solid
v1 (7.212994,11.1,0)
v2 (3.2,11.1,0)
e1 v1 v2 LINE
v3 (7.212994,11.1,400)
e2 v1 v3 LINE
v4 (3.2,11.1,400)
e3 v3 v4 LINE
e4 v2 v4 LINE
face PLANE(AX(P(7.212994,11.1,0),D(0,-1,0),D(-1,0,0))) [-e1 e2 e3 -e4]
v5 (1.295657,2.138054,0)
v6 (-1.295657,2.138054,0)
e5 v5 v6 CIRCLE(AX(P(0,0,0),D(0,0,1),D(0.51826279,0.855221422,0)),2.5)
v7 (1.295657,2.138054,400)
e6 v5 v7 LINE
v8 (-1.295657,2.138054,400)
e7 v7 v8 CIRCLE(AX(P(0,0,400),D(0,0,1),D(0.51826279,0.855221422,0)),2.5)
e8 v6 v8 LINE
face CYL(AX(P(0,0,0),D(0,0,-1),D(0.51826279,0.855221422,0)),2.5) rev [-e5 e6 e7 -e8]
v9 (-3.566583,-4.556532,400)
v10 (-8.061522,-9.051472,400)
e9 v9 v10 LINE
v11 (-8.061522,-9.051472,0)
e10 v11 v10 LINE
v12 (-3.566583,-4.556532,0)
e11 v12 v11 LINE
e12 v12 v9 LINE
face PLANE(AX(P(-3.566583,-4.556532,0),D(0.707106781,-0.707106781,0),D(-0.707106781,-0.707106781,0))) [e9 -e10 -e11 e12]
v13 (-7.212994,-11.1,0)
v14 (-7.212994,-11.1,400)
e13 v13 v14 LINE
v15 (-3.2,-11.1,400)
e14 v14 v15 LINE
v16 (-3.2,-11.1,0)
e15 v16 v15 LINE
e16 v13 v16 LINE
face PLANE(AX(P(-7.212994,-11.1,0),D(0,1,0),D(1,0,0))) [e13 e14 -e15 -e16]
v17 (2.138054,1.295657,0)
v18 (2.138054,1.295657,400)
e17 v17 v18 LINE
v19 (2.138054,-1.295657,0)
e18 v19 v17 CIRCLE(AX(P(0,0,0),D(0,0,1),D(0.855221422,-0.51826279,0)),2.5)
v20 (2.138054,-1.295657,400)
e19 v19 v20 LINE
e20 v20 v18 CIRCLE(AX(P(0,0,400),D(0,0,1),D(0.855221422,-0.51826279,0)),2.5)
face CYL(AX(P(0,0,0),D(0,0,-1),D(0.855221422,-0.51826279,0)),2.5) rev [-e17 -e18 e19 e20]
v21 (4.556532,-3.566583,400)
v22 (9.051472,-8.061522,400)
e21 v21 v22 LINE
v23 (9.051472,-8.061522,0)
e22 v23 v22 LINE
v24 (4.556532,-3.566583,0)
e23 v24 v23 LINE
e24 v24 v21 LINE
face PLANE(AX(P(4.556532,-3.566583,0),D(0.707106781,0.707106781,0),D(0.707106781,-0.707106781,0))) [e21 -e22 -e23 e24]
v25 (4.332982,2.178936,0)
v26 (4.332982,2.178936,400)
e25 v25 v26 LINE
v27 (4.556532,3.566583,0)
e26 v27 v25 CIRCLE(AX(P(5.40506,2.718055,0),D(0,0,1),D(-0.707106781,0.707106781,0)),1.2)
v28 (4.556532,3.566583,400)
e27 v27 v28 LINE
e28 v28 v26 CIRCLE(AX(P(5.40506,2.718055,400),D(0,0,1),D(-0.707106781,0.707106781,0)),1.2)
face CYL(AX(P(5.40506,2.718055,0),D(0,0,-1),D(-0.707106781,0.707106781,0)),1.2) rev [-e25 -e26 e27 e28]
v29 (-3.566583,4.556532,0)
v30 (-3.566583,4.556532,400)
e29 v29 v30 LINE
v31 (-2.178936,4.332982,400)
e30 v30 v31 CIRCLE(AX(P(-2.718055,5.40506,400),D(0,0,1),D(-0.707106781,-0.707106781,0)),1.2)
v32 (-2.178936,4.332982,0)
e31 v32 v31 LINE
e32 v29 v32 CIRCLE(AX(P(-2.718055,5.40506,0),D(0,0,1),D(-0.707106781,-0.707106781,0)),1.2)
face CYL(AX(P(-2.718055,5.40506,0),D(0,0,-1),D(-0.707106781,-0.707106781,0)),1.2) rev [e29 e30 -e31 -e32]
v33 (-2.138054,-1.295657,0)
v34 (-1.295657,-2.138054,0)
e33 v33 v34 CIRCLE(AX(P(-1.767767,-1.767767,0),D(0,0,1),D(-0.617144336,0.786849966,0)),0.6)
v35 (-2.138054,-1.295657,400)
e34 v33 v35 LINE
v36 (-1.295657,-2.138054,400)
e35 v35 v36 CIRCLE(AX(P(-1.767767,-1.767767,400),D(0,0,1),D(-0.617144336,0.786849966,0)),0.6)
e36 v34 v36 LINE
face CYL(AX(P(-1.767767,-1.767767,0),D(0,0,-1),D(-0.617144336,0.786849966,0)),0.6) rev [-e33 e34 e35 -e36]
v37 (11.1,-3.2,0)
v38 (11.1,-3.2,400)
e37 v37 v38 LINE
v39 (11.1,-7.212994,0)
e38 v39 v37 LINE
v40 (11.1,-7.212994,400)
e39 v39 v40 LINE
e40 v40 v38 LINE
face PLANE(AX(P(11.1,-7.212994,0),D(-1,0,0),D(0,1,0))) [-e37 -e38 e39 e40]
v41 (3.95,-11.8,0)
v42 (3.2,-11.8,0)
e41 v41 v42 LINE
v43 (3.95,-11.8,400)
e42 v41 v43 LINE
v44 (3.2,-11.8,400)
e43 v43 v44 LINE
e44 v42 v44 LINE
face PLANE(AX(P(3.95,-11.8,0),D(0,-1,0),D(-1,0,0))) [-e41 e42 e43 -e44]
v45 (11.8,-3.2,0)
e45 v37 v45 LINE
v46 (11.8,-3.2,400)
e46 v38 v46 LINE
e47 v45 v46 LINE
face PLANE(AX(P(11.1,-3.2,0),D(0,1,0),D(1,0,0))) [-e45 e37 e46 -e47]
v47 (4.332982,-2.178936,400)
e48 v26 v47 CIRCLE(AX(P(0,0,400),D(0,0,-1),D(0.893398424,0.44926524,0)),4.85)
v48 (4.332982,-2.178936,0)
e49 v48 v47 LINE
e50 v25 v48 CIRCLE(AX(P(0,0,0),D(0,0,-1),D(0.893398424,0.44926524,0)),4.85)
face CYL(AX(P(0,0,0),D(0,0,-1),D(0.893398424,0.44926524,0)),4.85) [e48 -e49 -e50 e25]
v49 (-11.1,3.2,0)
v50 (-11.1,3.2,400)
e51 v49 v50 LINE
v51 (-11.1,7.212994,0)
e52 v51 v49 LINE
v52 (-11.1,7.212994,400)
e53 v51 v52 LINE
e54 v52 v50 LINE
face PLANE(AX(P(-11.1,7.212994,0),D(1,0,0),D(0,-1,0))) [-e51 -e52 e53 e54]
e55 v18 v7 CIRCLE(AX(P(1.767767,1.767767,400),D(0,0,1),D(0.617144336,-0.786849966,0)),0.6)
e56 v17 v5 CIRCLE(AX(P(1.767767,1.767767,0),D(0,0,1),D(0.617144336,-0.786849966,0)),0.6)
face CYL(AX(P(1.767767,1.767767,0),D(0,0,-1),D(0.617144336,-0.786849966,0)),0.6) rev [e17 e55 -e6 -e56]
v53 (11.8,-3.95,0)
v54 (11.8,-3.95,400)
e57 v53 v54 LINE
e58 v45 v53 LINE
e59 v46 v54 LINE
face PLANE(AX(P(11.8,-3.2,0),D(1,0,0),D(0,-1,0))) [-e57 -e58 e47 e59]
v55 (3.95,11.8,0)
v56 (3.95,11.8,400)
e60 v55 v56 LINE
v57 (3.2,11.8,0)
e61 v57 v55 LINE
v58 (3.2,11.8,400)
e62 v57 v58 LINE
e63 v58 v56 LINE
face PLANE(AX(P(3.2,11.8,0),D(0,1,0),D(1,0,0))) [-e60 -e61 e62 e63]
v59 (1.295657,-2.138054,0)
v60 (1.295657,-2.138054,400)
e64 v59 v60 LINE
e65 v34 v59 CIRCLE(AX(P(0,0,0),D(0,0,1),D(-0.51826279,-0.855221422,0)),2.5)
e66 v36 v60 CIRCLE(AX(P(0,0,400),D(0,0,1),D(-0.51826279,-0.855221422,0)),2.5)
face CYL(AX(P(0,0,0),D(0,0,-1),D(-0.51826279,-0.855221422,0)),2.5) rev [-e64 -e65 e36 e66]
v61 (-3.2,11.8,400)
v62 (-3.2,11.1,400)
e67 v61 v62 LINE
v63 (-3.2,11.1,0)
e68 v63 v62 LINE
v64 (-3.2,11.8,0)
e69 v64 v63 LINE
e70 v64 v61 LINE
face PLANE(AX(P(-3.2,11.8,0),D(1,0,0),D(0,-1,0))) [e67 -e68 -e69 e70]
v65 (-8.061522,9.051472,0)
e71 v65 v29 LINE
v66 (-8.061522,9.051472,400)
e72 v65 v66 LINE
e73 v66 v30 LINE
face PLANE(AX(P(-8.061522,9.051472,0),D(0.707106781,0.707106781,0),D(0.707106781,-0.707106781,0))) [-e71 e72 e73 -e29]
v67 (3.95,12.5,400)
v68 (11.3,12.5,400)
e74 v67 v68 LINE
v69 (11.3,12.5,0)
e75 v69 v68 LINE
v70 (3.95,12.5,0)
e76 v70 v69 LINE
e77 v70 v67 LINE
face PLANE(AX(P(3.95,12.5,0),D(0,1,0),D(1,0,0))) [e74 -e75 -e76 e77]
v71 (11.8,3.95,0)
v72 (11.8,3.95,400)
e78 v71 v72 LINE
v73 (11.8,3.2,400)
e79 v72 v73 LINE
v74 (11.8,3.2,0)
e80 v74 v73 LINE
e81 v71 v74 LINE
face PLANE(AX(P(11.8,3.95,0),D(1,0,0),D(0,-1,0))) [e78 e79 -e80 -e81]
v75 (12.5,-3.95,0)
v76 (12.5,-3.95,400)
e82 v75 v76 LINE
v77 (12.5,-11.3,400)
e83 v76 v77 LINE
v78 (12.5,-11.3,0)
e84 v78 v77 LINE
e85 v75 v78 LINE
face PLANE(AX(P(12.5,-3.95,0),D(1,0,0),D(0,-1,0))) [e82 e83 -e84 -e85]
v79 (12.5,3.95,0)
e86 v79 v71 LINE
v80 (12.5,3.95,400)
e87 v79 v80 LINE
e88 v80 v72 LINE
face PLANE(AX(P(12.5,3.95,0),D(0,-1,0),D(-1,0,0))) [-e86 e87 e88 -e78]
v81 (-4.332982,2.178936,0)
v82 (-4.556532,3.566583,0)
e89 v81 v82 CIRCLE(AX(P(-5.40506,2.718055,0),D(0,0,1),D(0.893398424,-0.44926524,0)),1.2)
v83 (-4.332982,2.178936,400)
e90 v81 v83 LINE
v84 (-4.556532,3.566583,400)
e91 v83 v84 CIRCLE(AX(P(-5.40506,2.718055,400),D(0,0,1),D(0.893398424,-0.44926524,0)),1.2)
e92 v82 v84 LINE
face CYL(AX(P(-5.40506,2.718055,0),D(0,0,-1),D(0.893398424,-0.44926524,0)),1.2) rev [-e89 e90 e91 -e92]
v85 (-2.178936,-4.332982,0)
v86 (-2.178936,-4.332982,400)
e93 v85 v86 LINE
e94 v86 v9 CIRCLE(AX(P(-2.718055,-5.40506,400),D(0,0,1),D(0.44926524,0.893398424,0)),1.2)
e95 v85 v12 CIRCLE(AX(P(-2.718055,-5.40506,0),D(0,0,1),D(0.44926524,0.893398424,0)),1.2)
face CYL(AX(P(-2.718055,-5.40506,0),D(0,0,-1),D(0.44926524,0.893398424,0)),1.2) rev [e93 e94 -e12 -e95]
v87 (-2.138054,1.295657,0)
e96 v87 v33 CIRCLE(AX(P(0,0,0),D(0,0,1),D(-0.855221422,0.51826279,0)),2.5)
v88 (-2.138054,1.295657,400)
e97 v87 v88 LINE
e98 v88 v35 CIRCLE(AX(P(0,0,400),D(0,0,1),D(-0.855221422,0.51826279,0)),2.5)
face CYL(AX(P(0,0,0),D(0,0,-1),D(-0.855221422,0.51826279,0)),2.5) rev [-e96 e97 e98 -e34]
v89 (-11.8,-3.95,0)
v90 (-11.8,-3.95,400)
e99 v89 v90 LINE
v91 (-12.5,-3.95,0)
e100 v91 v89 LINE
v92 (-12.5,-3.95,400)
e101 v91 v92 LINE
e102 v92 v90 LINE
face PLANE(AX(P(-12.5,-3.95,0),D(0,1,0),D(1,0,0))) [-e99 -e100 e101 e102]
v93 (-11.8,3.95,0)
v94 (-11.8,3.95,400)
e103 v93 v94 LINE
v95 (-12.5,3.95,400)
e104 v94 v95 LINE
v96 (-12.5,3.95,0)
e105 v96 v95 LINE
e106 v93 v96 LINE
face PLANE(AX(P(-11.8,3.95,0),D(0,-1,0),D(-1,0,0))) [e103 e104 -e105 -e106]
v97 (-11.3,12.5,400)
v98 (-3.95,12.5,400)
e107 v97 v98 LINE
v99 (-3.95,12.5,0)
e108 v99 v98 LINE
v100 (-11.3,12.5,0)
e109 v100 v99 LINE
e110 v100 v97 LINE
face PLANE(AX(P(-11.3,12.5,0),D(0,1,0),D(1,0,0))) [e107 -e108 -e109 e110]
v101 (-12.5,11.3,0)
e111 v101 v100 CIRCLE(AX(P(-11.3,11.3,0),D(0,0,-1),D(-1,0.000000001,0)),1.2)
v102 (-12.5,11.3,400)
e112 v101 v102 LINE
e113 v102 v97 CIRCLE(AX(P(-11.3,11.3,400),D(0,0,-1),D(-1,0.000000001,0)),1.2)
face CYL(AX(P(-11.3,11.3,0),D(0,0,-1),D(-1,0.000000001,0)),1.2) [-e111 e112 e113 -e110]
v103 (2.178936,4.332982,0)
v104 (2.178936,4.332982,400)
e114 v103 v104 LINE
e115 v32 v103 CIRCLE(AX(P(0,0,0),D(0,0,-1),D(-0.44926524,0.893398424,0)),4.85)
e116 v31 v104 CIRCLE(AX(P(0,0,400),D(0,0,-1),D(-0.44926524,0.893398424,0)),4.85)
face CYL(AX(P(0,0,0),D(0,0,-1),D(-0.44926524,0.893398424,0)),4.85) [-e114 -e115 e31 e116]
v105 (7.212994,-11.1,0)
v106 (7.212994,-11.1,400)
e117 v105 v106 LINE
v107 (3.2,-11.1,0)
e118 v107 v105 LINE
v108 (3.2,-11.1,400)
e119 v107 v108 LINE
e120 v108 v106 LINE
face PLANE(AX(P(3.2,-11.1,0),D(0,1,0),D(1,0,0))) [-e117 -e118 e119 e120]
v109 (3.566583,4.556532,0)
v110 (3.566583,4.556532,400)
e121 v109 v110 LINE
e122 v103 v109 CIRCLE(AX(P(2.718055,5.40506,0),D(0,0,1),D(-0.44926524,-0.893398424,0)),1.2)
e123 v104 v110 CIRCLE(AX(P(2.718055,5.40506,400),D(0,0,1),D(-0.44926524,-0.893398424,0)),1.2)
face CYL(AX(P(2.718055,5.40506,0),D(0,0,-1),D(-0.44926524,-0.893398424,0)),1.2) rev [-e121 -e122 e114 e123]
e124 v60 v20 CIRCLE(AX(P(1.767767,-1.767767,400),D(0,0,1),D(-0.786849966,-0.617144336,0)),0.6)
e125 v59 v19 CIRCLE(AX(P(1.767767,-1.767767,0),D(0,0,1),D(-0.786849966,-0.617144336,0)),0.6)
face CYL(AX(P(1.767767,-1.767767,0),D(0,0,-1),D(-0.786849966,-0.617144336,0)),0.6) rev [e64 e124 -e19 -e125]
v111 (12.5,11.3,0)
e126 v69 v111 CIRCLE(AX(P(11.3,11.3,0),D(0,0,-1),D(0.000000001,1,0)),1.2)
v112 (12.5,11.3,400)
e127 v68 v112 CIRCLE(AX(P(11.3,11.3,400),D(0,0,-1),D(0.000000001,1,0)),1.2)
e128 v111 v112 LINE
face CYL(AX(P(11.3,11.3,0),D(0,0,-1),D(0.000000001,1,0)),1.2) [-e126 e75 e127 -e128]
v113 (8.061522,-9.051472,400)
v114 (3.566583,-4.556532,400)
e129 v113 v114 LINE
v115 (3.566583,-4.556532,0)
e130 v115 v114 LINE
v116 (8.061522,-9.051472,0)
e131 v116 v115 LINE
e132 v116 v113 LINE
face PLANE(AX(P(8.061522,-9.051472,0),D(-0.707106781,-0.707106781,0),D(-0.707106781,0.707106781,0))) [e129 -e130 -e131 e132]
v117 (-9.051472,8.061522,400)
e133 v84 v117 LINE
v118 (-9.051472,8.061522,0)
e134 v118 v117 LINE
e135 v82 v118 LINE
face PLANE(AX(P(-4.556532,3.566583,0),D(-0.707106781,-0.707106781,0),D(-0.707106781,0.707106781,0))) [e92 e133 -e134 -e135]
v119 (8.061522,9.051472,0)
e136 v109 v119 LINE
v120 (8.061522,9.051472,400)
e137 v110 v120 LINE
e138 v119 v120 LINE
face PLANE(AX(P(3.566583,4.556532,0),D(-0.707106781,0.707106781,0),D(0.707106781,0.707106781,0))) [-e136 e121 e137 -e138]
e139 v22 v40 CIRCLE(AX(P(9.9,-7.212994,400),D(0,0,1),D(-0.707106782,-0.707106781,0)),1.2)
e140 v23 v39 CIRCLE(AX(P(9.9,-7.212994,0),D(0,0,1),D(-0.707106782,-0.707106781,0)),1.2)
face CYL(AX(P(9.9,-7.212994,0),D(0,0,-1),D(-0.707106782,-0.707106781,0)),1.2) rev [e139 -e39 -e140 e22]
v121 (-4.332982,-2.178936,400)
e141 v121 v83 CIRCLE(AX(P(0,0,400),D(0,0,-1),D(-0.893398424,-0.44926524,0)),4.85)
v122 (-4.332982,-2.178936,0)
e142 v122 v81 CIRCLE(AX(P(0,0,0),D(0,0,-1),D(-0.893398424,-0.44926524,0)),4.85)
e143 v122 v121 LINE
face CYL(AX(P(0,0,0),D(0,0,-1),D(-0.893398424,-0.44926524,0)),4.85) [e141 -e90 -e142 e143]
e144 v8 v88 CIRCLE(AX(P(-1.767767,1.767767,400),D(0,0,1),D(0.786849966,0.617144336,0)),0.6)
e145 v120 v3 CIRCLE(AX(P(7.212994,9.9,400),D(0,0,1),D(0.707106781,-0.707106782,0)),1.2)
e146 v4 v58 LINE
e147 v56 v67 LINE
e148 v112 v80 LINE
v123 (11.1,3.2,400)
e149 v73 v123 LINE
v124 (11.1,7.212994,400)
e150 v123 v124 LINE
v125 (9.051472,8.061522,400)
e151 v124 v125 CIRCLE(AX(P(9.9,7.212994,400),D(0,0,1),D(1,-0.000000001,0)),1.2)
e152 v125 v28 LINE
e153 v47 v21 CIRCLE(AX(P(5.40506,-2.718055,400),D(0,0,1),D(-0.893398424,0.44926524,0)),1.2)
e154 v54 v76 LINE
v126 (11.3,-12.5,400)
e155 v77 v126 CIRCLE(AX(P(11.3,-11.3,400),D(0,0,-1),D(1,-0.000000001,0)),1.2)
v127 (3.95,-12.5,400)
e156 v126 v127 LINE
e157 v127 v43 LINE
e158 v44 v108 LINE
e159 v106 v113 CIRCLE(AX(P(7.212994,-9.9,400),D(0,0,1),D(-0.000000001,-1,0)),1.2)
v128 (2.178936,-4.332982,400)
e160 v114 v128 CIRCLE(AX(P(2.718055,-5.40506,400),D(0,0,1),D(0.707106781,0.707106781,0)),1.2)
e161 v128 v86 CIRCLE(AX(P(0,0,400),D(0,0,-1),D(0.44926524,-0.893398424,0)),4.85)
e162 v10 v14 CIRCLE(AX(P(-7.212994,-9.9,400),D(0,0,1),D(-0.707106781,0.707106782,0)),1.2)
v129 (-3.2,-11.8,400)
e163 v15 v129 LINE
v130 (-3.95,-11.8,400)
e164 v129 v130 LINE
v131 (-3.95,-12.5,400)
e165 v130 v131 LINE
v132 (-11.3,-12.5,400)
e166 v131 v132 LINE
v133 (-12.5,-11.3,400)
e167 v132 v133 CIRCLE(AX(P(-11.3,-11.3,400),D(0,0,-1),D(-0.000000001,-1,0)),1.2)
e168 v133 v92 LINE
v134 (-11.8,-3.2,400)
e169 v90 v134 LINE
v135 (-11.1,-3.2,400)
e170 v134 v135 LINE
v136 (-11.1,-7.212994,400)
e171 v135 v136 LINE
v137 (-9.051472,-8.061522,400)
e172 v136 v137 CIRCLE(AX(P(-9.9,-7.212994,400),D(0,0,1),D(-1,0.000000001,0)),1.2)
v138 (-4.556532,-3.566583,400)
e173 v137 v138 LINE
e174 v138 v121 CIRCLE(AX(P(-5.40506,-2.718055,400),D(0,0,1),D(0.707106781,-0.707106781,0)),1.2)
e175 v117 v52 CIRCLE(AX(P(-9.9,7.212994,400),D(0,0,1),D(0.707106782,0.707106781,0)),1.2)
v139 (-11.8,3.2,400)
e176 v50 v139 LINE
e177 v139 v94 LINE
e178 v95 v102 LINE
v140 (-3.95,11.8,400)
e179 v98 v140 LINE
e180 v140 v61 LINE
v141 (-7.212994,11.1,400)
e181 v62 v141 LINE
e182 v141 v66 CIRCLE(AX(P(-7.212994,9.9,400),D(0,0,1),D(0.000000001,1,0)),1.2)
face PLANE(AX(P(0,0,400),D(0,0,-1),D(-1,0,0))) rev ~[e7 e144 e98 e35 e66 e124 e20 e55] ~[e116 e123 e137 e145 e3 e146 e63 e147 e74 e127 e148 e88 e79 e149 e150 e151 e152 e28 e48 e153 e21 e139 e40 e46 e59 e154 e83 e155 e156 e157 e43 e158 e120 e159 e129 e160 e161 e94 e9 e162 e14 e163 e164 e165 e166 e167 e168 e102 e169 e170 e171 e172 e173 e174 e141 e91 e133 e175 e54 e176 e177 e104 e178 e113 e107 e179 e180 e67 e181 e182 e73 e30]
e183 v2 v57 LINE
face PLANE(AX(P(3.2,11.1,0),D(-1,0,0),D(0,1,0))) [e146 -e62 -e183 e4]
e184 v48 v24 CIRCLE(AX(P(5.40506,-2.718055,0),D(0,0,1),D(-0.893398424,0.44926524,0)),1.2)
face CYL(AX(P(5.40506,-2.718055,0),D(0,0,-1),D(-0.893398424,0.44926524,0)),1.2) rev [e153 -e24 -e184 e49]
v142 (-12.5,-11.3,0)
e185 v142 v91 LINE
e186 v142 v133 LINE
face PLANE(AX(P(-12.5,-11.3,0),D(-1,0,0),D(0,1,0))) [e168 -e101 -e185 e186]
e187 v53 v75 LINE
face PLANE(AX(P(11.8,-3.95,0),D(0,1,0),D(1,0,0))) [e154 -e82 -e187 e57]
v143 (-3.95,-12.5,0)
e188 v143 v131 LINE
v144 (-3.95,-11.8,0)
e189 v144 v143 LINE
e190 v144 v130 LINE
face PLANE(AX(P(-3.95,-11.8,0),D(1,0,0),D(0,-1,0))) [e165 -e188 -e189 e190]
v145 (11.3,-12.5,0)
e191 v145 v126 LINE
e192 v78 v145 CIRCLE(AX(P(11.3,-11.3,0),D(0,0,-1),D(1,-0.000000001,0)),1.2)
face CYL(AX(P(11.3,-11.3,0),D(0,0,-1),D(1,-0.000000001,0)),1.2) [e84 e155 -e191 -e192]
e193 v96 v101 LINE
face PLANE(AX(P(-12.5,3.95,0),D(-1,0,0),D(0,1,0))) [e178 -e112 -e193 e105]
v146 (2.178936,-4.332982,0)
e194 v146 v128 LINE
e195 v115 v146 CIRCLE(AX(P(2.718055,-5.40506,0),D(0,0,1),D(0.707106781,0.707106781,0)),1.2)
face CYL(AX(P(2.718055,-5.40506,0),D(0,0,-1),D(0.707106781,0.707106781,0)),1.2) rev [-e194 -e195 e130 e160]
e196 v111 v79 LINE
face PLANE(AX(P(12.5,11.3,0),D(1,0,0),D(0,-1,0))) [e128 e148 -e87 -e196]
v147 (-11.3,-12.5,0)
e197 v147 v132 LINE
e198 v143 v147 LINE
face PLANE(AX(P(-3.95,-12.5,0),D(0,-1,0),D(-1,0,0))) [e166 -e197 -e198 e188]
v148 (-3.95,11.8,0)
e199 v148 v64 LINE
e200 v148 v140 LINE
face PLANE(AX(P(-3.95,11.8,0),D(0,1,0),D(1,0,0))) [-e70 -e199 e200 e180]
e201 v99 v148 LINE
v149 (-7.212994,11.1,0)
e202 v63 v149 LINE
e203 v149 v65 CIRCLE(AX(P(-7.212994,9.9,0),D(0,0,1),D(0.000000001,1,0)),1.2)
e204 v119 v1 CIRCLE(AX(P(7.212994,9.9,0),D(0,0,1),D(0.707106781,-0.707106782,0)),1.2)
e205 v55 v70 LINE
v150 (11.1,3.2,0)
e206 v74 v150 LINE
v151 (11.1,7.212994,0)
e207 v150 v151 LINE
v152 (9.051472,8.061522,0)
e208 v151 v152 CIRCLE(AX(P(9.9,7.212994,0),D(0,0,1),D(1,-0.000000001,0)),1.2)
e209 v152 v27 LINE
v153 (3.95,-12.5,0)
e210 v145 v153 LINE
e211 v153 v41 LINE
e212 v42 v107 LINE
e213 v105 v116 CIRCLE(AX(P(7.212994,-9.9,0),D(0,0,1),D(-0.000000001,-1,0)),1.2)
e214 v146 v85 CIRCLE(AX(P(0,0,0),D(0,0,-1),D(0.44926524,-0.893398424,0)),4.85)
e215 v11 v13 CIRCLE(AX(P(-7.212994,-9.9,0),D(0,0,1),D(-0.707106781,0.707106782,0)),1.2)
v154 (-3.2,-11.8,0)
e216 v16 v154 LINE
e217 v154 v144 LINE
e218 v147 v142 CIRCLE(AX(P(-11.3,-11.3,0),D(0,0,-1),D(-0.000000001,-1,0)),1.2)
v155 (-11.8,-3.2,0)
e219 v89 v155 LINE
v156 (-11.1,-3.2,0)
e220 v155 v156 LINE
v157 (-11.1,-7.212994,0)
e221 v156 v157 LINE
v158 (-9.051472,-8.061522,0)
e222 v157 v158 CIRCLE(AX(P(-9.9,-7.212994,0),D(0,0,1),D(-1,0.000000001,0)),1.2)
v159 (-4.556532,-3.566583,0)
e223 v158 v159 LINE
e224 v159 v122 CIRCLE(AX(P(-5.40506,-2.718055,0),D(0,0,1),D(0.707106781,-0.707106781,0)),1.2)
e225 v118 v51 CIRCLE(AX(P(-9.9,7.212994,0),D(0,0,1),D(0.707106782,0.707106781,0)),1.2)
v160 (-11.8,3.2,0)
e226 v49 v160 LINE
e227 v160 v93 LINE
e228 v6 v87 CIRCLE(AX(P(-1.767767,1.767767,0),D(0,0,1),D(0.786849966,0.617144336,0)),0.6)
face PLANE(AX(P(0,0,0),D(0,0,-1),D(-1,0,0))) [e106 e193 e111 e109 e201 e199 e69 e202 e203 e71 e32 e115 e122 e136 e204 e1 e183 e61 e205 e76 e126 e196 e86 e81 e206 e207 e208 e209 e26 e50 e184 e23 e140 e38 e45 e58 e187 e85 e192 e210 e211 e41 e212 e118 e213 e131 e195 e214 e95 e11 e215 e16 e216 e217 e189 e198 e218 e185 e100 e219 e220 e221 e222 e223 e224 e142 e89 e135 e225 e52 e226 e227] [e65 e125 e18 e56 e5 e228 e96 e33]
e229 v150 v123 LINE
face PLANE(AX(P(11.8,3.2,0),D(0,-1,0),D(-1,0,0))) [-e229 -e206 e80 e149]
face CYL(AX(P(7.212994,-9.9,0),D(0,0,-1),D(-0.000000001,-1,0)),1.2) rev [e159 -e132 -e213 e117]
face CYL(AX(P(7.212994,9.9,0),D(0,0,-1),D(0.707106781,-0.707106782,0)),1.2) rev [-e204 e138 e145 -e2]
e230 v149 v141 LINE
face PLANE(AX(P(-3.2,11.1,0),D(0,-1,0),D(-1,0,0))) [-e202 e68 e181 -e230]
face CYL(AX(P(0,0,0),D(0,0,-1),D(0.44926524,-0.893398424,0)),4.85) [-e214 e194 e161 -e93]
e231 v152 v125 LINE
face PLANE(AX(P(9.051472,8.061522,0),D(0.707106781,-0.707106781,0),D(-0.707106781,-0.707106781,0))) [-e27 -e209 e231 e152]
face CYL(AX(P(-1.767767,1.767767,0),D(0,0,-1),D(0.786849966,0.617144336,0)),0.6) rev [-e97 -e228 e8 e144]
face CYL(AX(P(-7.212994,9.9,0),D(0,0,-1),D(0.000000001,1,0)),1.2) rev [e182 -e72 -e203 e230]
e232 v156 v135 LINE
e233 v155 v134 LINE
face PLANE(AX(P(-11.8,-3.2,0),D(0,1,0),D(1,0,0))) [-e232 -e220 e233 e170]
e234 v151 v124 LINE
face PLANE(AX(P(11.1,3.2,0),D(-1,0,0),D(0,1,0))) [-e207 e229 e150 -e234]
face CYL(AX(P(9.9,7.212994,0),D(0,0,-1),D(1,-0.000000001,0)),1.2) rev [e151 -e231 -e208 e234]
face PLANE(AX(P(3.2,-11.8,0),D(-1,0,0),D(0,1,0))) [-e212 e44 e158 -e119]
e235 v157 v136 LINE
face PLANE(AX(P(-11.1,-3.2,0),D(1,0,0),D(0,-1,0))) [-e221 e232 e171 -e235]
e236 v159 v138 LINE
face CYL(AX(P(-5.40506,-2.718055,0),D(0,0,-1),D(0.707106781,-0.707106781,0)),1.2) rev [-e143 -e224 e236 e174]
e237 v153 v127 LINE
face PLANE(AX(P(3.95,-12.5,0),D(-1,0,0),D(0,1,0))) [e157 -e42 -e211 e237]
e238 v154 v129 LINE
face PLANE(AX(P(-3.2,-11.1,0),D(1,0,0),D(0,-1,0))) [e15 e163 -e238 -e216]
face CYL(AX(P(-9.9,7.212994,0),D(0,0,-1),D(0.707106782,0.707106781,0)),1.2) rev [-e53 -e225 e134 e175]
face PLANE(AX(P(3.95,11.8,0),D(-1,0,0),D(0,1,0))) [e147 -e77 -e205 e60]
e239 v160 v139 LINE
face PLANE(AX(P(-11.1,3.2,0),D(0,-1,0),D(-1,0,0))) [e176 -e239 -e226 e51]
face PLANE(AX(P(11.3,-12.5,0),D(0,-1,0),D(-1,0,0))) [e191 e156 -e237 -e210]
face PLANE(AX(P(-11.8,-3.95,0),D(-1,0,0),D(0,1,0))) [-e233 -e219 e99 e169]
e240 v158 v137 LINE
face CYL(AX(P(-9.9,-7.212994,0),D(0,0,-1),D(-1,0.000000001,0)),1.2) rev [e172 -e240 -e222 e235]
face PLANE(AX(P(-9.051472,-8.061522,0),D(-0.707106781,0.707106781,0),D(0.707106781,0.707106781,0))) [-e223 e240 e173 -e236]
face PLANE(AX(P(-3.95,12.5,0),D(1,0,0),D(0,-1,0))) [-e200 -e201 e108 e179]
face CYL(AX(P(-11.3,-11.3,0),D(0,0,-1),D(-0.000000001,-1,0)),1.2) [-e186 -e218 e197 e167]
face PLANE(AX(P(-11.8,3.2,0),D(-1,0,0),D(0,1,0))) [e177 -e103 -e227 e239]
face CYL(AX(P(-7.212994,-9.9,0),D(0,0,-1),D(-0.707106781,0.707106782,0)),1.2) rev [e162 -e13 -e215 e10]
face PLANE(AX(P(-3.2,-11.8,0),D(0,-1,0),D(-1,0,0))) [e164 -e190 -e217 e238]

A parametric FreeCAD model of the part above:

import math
import FreeCAD as App
import Part
import Sketcher
from FreeCAD import Vector
Q = App.Units.Quantity

doc = App.newDocument("Part")
params = doc.addObject("Spreadsheet::Sheet", "Params")
for row, (alias, value) in enumerate([
    ("sketch1_radius", "1.2 mm"),
    ("sketch1_radius2", "0.6 mm"),
    ("sketch1_radius3", "2.5 mm"),
    ("sketch1_radius4", "4.85 mm"),
    ("sketch1_width", "0.7 mm"),
    ("pad1_length", "400 mm"),
], start=1):
    params.set(f"A{row}", alias)
    params.set(f"B{row}", "=" + value)
    params.setAlias(f"B{row}", alias)

body = doc.addObject("PartDesign::Body", "Body")

# Sketch on XY plane
sketch1 = body.newObject("Sketcher::SketchObject", "Sketch")
sketch1.AttachmentSupport = (doc.getObject("XY_Plane"), [""])
sketch1.MapMode = "FlatFace"
sketch1.addGeometry(Part.LineSegment(Vector(11.3, 12.5, 0), Vector(4, 12.5, 0)), False)
sketch1.addGeometry(Part.LineSegment(Vector(4, 12.5, 0), Vector(4, 11.8, 0)), False)
sketch1.addGeometry(Part.LineSegment(Vector(4, 11.8, 0), Vector(3.2, 11.8, 0)), False)
sketch1.addGeometry(Part.LineSegment(Vector(3.2, 11.8, 0), Vector(3.2, 11.1, 0)), False)
sketch1.addGeometry(Part.LineSegment(Vector(3.2, 11.1, 0), Vector(7.2, 11.1, 0)), False)
sketch1.addGeometry(Part.ArcOfCircle(Part.Circle(Vector(7.2, 9.9, 0), Vector(0, 0, 1), 1.2), math.radians(-45), math.radians(90)), False)
sketch1.addGeometry(Part.LineSegment(Vector(8.1, 9.1, 0), Vector(3.6, 4.6, 0)), False)
sketch1.addGeometry(Part.ArcOfCircle(Part.Circle(Vector(2.7, 5.4, 0), Vector(0, 0, 1), 1.2), math.radians(-117), math.radians(-45)), False)
sketch1.addGeometry(Part.ArcOfCircle(Part.Circle(Vector(0, 0, 0), Vector(0, 0, 1), 4.8), math.radians(63), math.radians(117)), False)
sketch1.addGeometry(Part.ArcOfCircle(Part.Circle(Vector(-2.7, 5.4, 0), Vector(0, 0, 1), 1.2), math.radians(-135), math.radians(-63)), False)
sketch1.addGeometry(Part.LineSegment(Vector(-3.6, 4.6, 0), Vector(-8.1, 9.1, 0)), False)
sketch1.addGeometry(Part.ArcOfCircle(Part.Circle(Vector(-7.2, 9.9, 0), Vector(0, 0, 1), 1.2), math.radians(90), math.radians(225)), False)
sketch1.addGeometry(Part.LineSegment(Vector(-7.2, 11.1, 0), Vector(-3.2, 11.1, 0)), False)
sketch1.addGeometry(Part.LineSegment(Vector(-3.2, 11.1, 0), Vector(-3.2, 11.8, 0)), False)
sketch1.addGeometry(Part.LineSegment(Vector(-3.2, 11.8, 0), Vector(-4, 11.8, 0)), False)
sketch1.addGeometry(Part.LineSegment(Vector(-4, 11.8, 0), Vector(-4, 12.5, 0)), False)
sketch1.addGeometry(Part.LineSegment(Vector(-4, 12.5, 0), Vector(-11.3, 12.5, 0)), False)
sketch1.addGeometry(Part.ArcOfCircle(Part.Circle(Vector(-11.3, 11.3, 0), Vector(0, 0, 1), 1.2), math.radians(90), math.radians(180)), False)
sketch1.addGeometry(Part.LineSegment(Vector(-12.5, 11.3, 0), Vector(-12.5, 4, 0)), False)
sketch1.addGeometry(Part.LineSegment(Vector(-12.5, 4, 0), Vector(-11.8, 4, 0)), False)
sketch1.addGeometry(Part.LineSegment(Vector(-11.8, 4, 0), Vector(-11.8, 3.2, 0)), False)
sketch1.addGeometry(Part.LineSegment(Vector(-11.8, 3.2, 0), Vector(-11.1, 3.2, 0)), False)
sketch1.addGeometry(Part.LineSegment(Vector(-11.1, 3.2, 0), Vector(-11.1, 7.2, 0)), False)
sketch1.addGeometry(Part.ArcOfCircle(Part.Circle(Vector(-9.9, 7.2, 0), Vector(0, 0, 1), 1.2), math.radians(45), math.radians(180)), False)
sketch1.addGeometry(Part.LineSegment(Vector(-9.1, 8.1, 0), Vector(-4.6, 3.6, 0)), False)
sketch1.addGeometry(Part.ArcOfCircle(Part.Circle(Vector(-5.4, 2.7, 0), Vector(0, 0, 1), 1.2), math.radians(-27), math.radians(45)), False)
sketch1.addGeometry(Part.ArcOfCircle(Part.Circle(Vector(0, 0, 0), Vector(0, 0, 1), 4.8), math.radians(153), math.radians(207)), False)
sketch1.addGeometry(Part.ArcOfCircle(Part.Circle(Vector(-5.4, -2.7, 0), Vector(0, 0, 1), 1.2), math.radians(-45), math.radians(27)), False)
sketch1.addGeometry(Part.LineSegment(Vector(-4.6, -3.6, 0), Vector(-9.1, -8.1, 0)), False)
sketch1.addGeometry(Part.ArcOfCircle(Part.Circle(Vector(-9.9, -7.2, 0), Vector(0, 0, 1), 1.2), math.radians(180), math.radians(315)), False)
sketch1.addGeometry(Part.LineSegment(Vector(-11.1, -7.2, 0), Vector(-11.1, -3.2, 0)), False)
sketch1.addGeometry(Part.LineSegment(Vector(-11.1, -3.2, 0), Vector(-11.8, -3.2, 0)), False)
sketch1.addGeometry(Part.LineSegment(Vector(-11.8, -3.2, 0), Vector(-11.8, -4, 0)), False)
sketch1.addGeometry(Part.LineSegment(Vector(-11.8, -4, 0), Vector(-12.5, -4, 0)), False)
sketch1.addGeometry(Part.LineSegment(Vector(-12.5, -4, 0), Vector(-12.5, -11.3, 0)), False)
sketch1.addGeometry(Part.ArcOfCircle(Part.Circle(Vector(-11.3, -11.3, 0), Vector(0, 0, 1), 1.2), math.radians(-180), math.radians(-90)), False)
sketch1.addGeometry(Part.LineSegment(Vector(-11.3, -12.5, 0), Vector(-4, -12.5, 0)), False)
sketch1.addGeometry(Part.LineSegment(Vector(-4, -12.5, 0), Vector(-4, -11.8, 0)), False)
sketch1.addGeometry(Part.LineSegment(Vector(-4, -11.8, 0), Vector(-3.2, -11.8, 0)), False)
sketch1.addGeometry(Part.LineSegment(Vector(-3.2, -11.8, 0), Vector(-3.2, -11.1, 0)), False)
sketch1.addGeometry(Part.LineSegment(Vector(-3.2, -11.1, 0), Vector(-7.2, -11.1, 0)), False)
sketch1.addGeometry(Part.ArcOfCircle(Part.Circle(Vector(-7.2, -9.9, 0), Vector(0, 0, 1), 1.2), math.radians(135), math.radians(270)), False)
sketch1.addGeometry(Part.LineSegment(Vector(-8.1, -9.1, 0), Vector(-3.6, -4.6, 0)), False)
sketch1.addGeometry(Part.ArcOfCircle(Part.Circle(Vector(-2.7, -5.4, 0), Vector(0, 0, 1), 1.2), math.radians(63), math.radians(135)), False)
sketch1.addGeometry(Part.ArcOfCircle(Part.Circle(Vector(0, 0, 0), Vector(0, 0, 1), 4.8), math.radians(-117), math.radians(-63)), False)
sketch1.addGeometry(Part.ArcOfCircle(Part.Circle(Vector(2.7, -5.4, 0), Vector(0, 0, 1), 1.2), math.radians(45), math.radians(117)), False)
sketch1.addGeometry(Part.LineSegment(Vector(3.6, -4.6, 0), Vector(8.1, -9.1, 0)), False)
sketch1.addGeometry(Part.ArcOfCircle(Part.Circle(Vector(7.2, -9.9, 0), Vector(0, 0, 1), 1.2), math.radians(-90), math.radians(45)), False)
sketch1.addGeometry(Part.LineSegment(Vector(7.2, -11.1, 0), Vector(3.2, -11.1, 0)), False)
sketch1.addGeometry(Part.LineSegment(Vector(3.2, -11.1, 0), Vector(3.2, -11.8, 0)), False)
sketch1.addGeometry(Part.LineSegment(Vector(3.2, -11.8, 0), Vector(4, -11.8, 0)), False)
sketch1.addGeometry(Part.LineSegment(Vector(4, -11.8, 0), Vector(4, -12.5, 0)), False)
sketch1.addGeometry(Part.LineSegment(Vector(4, -12.5, 0), Vector(11.3, -12.5, 0)), False)
sketch1.addGeometry(Part.ArcOfCircle(Part.Circle(Vector(11.3, -11.3, 0), Vector(0, 0, 1), 1.2), math.radians(-90), math.radians(0)), False)
sketch1.addGeometry(Part.LineSegment(Vector(12.5, -11.3, 0), Vector(12.5, -4, 0)), False)
sketch1.addGeometry(Part.LineSegment(Vector(12.5, -4, 0), Vector(11.8, -4, 0)), False)
sketch1.addGeometry(Part.LineSegment(Vector(11.8, -4, 0), Vector(11.8, -3.2, 0)), False)
sketch1.addGeometry(Part.LineSegment(Vector(11.8, -3.2, 0), Vector(11.1, -3.2, 0)), False)
sketch1.addGeometry(Part.LineSegment(Vector(11.1, -3.2, 0), Vector(11.1, -7.2, 0)), False)
sketch1.addGeometry(Part.ArcOfCircle(Part.Circle(Vector(9.9, -7.2, 0), Vector(0, 0, 1), 1.2), math.radians(-135), math.radians(0)), False)
sketch1.addGeometry(Part.LineSegment(Vector(9.1, -8.1, 0), Vector(4.6, -3.6, 0)), False)
sketch1.addGeometry(Part.ArcOfCircle(Part.Circle(Vector(5.4, -2.7, 0), Vector(0, 0, 1), 1.2), math.radians(153), math.radians(225)), False)
sketch1.addGeometry(Part.ArcOfCircle(Part.Circle(Vector(0, 0, 0), Vector(0, 0, 1), 4.8), math.radians(-27), math.radians(27)), False)
sketch1.addGeometry(Part.ArcOfCircle(Part.Circle(Vector(5.4, 2.7, 0), Vector(0, 0, 1), 1.2), math.radians(135), math.radians(207)), False)
sketch1.addGeometry(Part.LineSegment(Vector(4.6, 3.6, 0), Vector(9.1, 8.1, 0)), False)
sketch1.addGeometry(Part.ArcOfCircle(Part.Circle(Vector(9.9, 7.2, 0), Vector(0, 0, 1), 1.2), math.radians(0), math.radians(135)), False)
sketch1.addGeometry(Part.LineSegment(Vector(11.1, 7.2, 0), Vector(11.1, 3.2, 0)), False)
sketch1.addGeometry(Part.LineSegment(Vector(11.1, 3.2, 0), Vector(11.8, 3.2, 0)), False)
sketch1.addGeometry(Part.LineSegment(Vector(11.8, 3.2, 0), Vector(11.8, 4, 0)), False)
sketch1.addGeometry(Part.LineSegment(Vector(11.8, 4, 0), Vector(12.5, 4, 0)), False)
sketch1.addGeometry(Part.LineSegment(Vector(12.5, 4, 0), Vector(12.5, 11.3, 0)), False)
sketch1.addGeometry(Part.ArcOfCircle(Part.Circle(Vector(11.3, 11.3, 0), Vector(0, 0, 1), 1.2), math.radians(0), math.radians(90)), False)
sketch1.addGeometry(Part.ArcOfCircle(Part.Circle(Vector(1.8, 1.8, 0), Vector(0, 0, 1), 0.6), math.radians(-52), math.radians(142)), False)
sketch1.addGeometry(Part.ArcOfCircle(Part.Circle(Vector(0, 0, 0), Vector(0, 0, 1), 2.5), math.radians(-31), math.radians(31)), False)
sketch1.addGeometry(Part.ArcOfCircle(Part.Circle(Vector(1.8, -1.8, 0), Vector(0, 0, 1), 0.6), math.radians(-142), math.radians(52)), False)
sketch1.addGeometry(Part.ArcOfCircle(Part.Circle(Vector(0, 0, 0), Vector(0, 0, 1), 2.5), math.radians(-121), math.radians(-59)), False)
sketch1.addGeometry(Part.ArcOfCircle(Part.Circle(Vector(-1.8, -1.8, 0), Vector(0, 0, 1), 0.6), math.radians(128), math.radians(322)), False)
sketch1.addGeometry(Part.ArcOfCircle(Part.Circle(Vector(0, 0, 0), Vector(0, 0, 1), 2.5), math.radians(149), math.radians(211)), False)
sketch1.addGeometry(Part.ArcOfCircle(Part.Circle(Vector(-1.8, 1.8, 0), Vector(0, 0, 1), 0.6), math.radians(38), math.radians(232)), False)
sketch1.addGeometry(Part.ArcOfCircle(Part.Circle(Vector(0, 0, 0), Vector(0, 0, 1), 2.5), math.radians(59), math.radians(121)), False)
sketch1.addConstraint(Sketcher.Constraint("Coincident", 0, 2, 1, 1))
sketch1.addConstraint(Sketcher.Constraint("Coincident", 1, 2, 2, 1))
sketch1.addConstraint(Sketcher.Constraint("Coincident", 2, 2, 3, 1))
sketch1.addConstraint(Sketcher.Constraint("Coincident", 3, 2, 4, 1))
sketch1.addConstraint(Sketcher.Constraint("Tangent", 4, 2, 5, 2))
sketch1.addConstraint(Sketcher.Constraint("Tangent", 5, 1, 6, 1))
sketch1.addConstraint(Sketcher.Constraint("Tangent", 6, 2, 7, 2))
sketch1.addConstraint(Sketcher.Constraint("Tangent", 7, 1, 8, 1))
sketch1.addConstraint(Sketcher.Constraint("Tangent", 8, 2, 9, 2))
sketch1.addConstraint(Sketcher.Constraint("Tangent", 9, 1, 10, 1))
sketch1.addConstraint(Sketcher.Constraint("Tangent", 10, 2, 11, 2))
sketch1.addConstraint(Sketcher.Constraint("Tangent", 11, 1, 12, 1))
sketch1.addConstraint(Sketcher.Constraint("Coincident", 12, 2, 13, 1))
sketch1.addConstraint(Sketcher.Constraint("Coincident", 13, 2, 14, 1))
sketch1.addConstraint(Sketcher.Constraint("Coincident", 14, 2, 15, 1))
sketch1.addConstraint(Sketcher.Constraint("Coincident", 15, 2, 16, 1))
sketch1.addConstraint(Sketcher.Constraint("Tangent", 16, 2, 17, 1))
sketch1.addConstraint(Sketcher.Constraint("Tangent", 17, 2, 18, 1))
sketch1.addConstraint(Sketcher.Constraint("Coincident", 18, 2, 19, 1))
sketch1.addConstraint(Sketcher.Constraint("Coincident", 19, 2, 20, 1))
sketch1.addConstraint(Sketcher.Constraint("Coincident", 20, 2, 21, 1))
sketch1.addConstraint(Sketcher.Constraint("Coincident", 21, 2, 22, 1))
sketch1.addConstraint(Sketcher.Constraint("Tangent", 22, 2, 23, 2))
sketch1.addConstraint(Sketcher.Constraint("Tangent", 23, 1, 24, 1))
sketch1.addConstraint(Sketcher.Constraint("Tangent", 24, 2, 25, 2))
sketch1.addConstraint(Sketcher.Constraint("Tangent", 25, 1, 26, 1))
sketch1.addConstraint(Sketcher.Constraint("Tangent", 26, 2, 27, 2))
sketch1.addConstraint(Sketcher.Constraint("Tangent", 27, 1, 28, 1))
sketch1.addConstraint(Sketcher.Constraint("Tangent", 28, 2, 29, 2))
sketch1.addConstraint(Sketcher.Constraint("Tangent", 29, 1, 30, 1))
sketch1.addConstraint(Sketcher.Constraint("Coincident", 30, 2, 31, 1))
sketch1.addConstraint(Sketcher.Constraint("Coincident", 31, 2, 32, 1))
sketch1.addConstraint(Sketcher.Constraint("Coincident", 32, 2, 33, 1))
sketch1.addConstraint(Sketcher.Constraint("Coincident", 33, 2, 34, 1))
sketch1.addConstraint(Sketcher.Constraint("Tangent", 34, 2, 35, 1))
sketch1.addConstraint(Sketcher.Constraint("Tangent", 35, 2, 36, 1))
sketch1.addConstraint(Sketcher.Constraint("Coincident", 36, 2, 37, 1))
sketch1.addConstraint(Sketcher.Constraint("Coincident", 37, 2, 38, 1))
sketch1.addConstraint(Sketcher.Constraint("Coincident", 38, 2, 39, 1))
sketch1.addConstraint(Sketcher.Constraint("Coincident", 39, 2, 40, 1))
sketch1.addConstraint(Sketcher.Constraint("Tangent", 40, 2, 41, 2))
sketch1.addConstraint(Sketcher.Constraint("Tangent", 41, 1, 42, 1))
sketch1.addConstraint(Sketcher.Constraint("Tangent", 42, 2, 43, 2))
sketch1.addConstraint(Sketcher.Constraint("Tangent", 43, 1, 44, 1))
sketch1.addConstraint(Sketcher.Constraint("Tangent", 44, 2, 45, 2))
sketch1.addConstraint(Sketcher.Constraint("Tangent", 45, 1, 46, 1))
sketch1.addConstraint(Sketcher.Constraint("Tangent", 46, 2, 47, 2))
sketch1.addConstraint(Sketcher.Constraint("Tangent", 47, 1, 48, 1))
sketch1.addConstraint(Sketcher.Constraint("Coincident", 48, 2, 49, 1))
sketch1.addConstraint(Sketcher.Constraint("Coincident", 49, 2, 50, 1))
sketch1.addConstraint(Sketcher.Constraint("Coincident", 50, 2, 51, 1))
sketch1.addConstraint(Sketcher.Constraint("Coincident", 51, 2, 52, 1))
sketch1.addConstraint(Sketcher.Constraint("Tangent", 52, 2, 53, 1))
sketch1.addConstraint(Sketcher.Constraint("Tangent", 53, 2, 54, 1))
sketch1.addConstraint(Sketcher.Constraint("Coincident", 54, 2, 55, 1))
sketch1.addConstraint(Sketcher.Constraint("Coincident", 55, 2, 56, 1))
sketch1.addConstraint(Sketcher.Constraint("Coincident", 56, 2, 57, 1))
sketch1.addConstraint(Sketcher.Constraint("Coincident", 57, 2, 58, 1))
sketch1.addConstraint(Sketcher.Constraint("Tangent", 58, 2, 59, 2))
sketch1.addConstraint(Sketcher.Constraint("Tangent", 59, 1, 60, 1))
sketch1.addConstraint(Sketcher.Constraint("Tangent", 60, 2, 61, 2))
sketch1.addConstraint(Sketcher.Constraint("Tangent", 61, 1, 62, 1))
sketch1.addConstraint(Sketcher.Constraint("Tangent", 62, 2, 63, 2))
sketch1.addConstraint(Sketcher.Constraint("Tangent", 63, 1, 64, 1))
sketch1.addConstraint(Sketcher.Constraint("Tangent", 64, 2, 65, 2))
sketch1.addConstraint(Sketcher.Constraint("Tangent", 65, 1, 66, 1))
sketch1.addConstraint(Sketcher.Constraint("Coincident", 66, 2, 67, 1))
sketch1.addConstraint(Sketcher.Constraint("Coincident", 67, 2, 68, 1))
sketch1.addConstraint(Sketcher.Constraint("Coincident", 68, 2, 69, 1))
sketch1.addConstraint(Sketcher.Constraint("Coincident", 69, 2, 70, 1))
sketch1.addConstraint(Sketcher.Constraint("Tangent", 70, 2, 71, 1))
sketch1.addConstraint(Sketcher.Constraint("Tangent", 71, 2, 0, 1))
sketch1.addConstraint(Sketcher.Constraint("Coincident", 72, 1, 73, 2))
sketch1.addConstraint(Sketcher.Constraint("Coincident", 73, 1, 74, 2))
sketch1.addConstraint(Sketcher.Constraint("Coincident", 74, 1, 75, 2))
sketch1.addConstraint(Sketcher.Constraint("Coincident", 75, 1, 76, 2))
sketch1.addConstraint(Sketcher.Constraint("Coincident", 76, 1, 77, 2))
sketch1.addConstraint(Sketcher.Constraint("Coincident", 77, 1, 78, 2))
sketch1.addConstraint(Sketcher.Constraint("Coincident", 78, 1, 79, 2))
sketch1.addConstraint(Sketcher.Constraint("Coincident", 79, 1, 72, 2))
sketch1.addConstraint(Sketcher.Constraint("Horizontal", 0))
sketch1.addConstraint(Sketcher.Constraint("Vertical", 1))
sketch1.addConstraint(Sketcher.Constraint("Horizontal", 2))
sketch1.addConstraint(Sketcher.Constraint("Vertical", 3))
sketch1.addConstraint(Sketcher.Constraint("Horizontal", 4))
sketch1.addConstraint(Sketcher.Constraint("Horizontal", 12))
sketch1.addConstraint(Sketcher.Constraint("Vertical", 13))
sketch1.addConstraint(Sketcher.Constraint("Horizontal", 14))
sketch1.addConstraint(Sketcher.Constraint("Vertical", 15))
sketch1.addConstraint(Sketcher.Constraint("Horizontal", 16))
sketch1.addConstraint(Sketcher.Constraint("Vertical", 18))
sketch1.addConstraint(Sketcher.Constraint("Horizontal", 19))
sketch1.addConstraint(Sketcher.Constraint("Vertical", 20))
sketch1.addConstraint(Sketcher.Constraint("Horizontal", 21))
sketch1.addConstraint(Sketcher.Constraint("Vertical", 22))
sketch1.addConstraint(Sketcher.Constraint("Vertical", 30))
sketch1.addConstraint(Sketcher.Constraint("Horizontal", 31))
sketch1.addConstraint(Sketcher.Constraint("Vertical", 32))
sketch1.addConstraint(Sketcher.Constraint("Horizontal", 33))
sketch1.addConstraint(Sketcher.Constraint("Vertical", 34))
sketch1.addConstraint(Sketcher.Constraint("Horizontal", 36))
sketch1.addConstraint(Sketcher.Constraint("Vertical", 37))
sketch1.addConstraint(Sketcher.Constraint("Horizontal", 38))
sketch1.addConstraint(Sketcher.Constraint("Vertical", 39))
sketch1.addConstraint(Sketcher.Constraint("Horizontal", 40))
sketch1.addConstraint(Sketcher.Constraint("Horizontal", 48))
sketch1.addConstraint(Sketcher.Constraint("Vertical", 49))
sketch1.addConstraint(Sketcher.Constraint("Horizontal", 50))
sketch1.addConstraint(Sketcher.Constraint("Vertical", 51))
sketch1.addConstraint(Sketcher.Constraint("Horizontal", 52))
sketch1.addConstraint(Sketcher.Constraint("Vertical", 54))
sketch1.addConstraint(Sketcher.Constraint("Horizontal", 55))
sketch1.addConstraint(Sketcher.Constraint("Vertical", 56))
sketch1.addConstraint(Sketcher.Constraint("Horizontal", 57))
sketch1.addConstraint(Sketcher.Constraint("Vertical", 58))
sketch1.addConstraint(Sketcher.Constraint("Vertical", 66))
sketch1.addConstraint(Sketcher.Constraint("Horizontal", 67))
sketch1.addConstraint(Sketcher.Constraint("Vertical", 68))
sketch1.addConstraint(Sketcher.Constraint("Horizontal", 69))
sketch1.addConstraint(Sketcher.Constraint("Vertical", 70))
sketch1.addConstraint(Sketcher.Constraint("Coincident", 8, 3, -1, 1))
sketch1.addConstraint(Sketcher.Constraint("Coincident", 26, 3, -1, 1))
sketch1.addConstraint(Sketcher.Constraint("Coincident", 44, 3, -1, 1))
sketch1.addConstraint(Sketcher.Constraint("Coincident", 62, 3, -1, 1))
sketch1.addConstraint(Sketcher.Constraint("Coincident", 73, 3, -1, 1))
sketch1.addConstraint(Sketcher.Constraint("Coincident", 75, 3, -1, 1))
sketch1.addConstraint(Sketcher.Constraint("Coincident", 77, 3, -1, 1))
sketch1.addConstraint(Sketcher.Constraint("Coincident", 79, 3, -1, 1))
sketch1.addConstraint(Sketcher.Constraint("Equal", 5, 7))
sketch1.addConstraint(Sketcher.Constraint("Equal", 7, 9))
sketch1.addConstraint(Sketcher.Constraint("Equal", 9, 11))
sketch1.addConstraint(Sketcher.Constraint("Equal", 11, 17))
sketch1.addConstraint(Sketcher.Constraint("Equal", 17, 23))
sketch1.addConstraint(Sketcher.Constraint("Equal", 23, 25))
sketch1.addConstraint(Sketcher.Constraint("Equal", 8, 26))
sketch1.addConstraint(Sketcher.Constraint("Equal", 25, 27))
sketch1.addConstraint(Sketcher.Constraint("Equal", 27, 29))
sketch1.addConstraint(Sketcher.Constraint("Equal", 29, 35))
sketch1.addConstraint(Sketcher.Constraint("Equal", 35, 41))
sketch1.addConstraint(Sketcher.Constraint("Equal", 41, 43))
sketch1.addConstraint(Sketcher.Constraint("Equal", 26, 44))
sketch1.addConstraint(Sketcher.Constraint("Equal", 43, 45))
sketch1.addConstraint(Sketcher.Constraint("Equal", 45, 47))
sketch1.addConstraint(Sketcher.Constraint("Equal", 47, 53))
sketch1.addConstraint(Sketcher.Constraint("Equal", 53, 59))
sketch1.addConstraint(Sketcher.Constraint("Equal", 59, 61))
sketch1.addConstraint(Sketcher.Constraint("Equal", 44, 62))
sketch1.addConstraint(Sketcher.Constraint("Equal", 61, 63))
sketch1.addConstraint(Sketcher.Constraint("Equal", 63, 65))
sketch1.addConstraint(Sketcher.Constraint("Equal", 65, 71))
sketch1.addConstraint(Sketcher.Constraint("Equal", 72, 74))
sketch1.addConstraint(Sketcher.Constraint("Equal", 73, 75))
sketch1.addConstraint(Sketcher.Constraint("Equal", 74, 76))
sketch1.addConstraint(Sketcher.Constraint("Equal", 75, 77))
sketch1.addConstraint(Sketcher.Constraint("Equal", 76, 78))
sketch1.addConstraint(Sketcher.Constraint("Equal", 77, 79))
sketch1.addConstraint(Sketcher.Constraint("Symmetric", 5, 3, 41, 3, -1, 1))
sketch1.addConstraint(Sketcher.Constraint("Symmetric", 11, 3, 47, 3, -1, 1))
sketch1.addConstraint(Sketcher.Constraint("Symmetric", 17, 3, 53, 3, -1, 1))
sketch1.addConstraint(Sketcher.Constraint("Symmetric", 23, 3, 59, 3, -1, 1))
sketch1.addConstraint(Sketcher.Constraint("Symmetric", 29, 3, 65, 3, -1, 1))
sketch1.addConstraint(Sketcher.Constraint("Symmetric", 35, 3, 71, 3, -1, 1))
sketch1.addConstraint(Sketcher.Constraint("Symmetric", 72, 3, 76, 3, -1, 1))
sketch1.addConstraint(Sketcher.Constraint("Symmetric", 74, 3, 78, 3, -1, 1))
sketch1.addConstraint(Sketcher.Constraint("Symmetric", 1, 2, 37, 2, -1, 1))
sketch1.addConstraint(Sketcher.Constraint("Symmetric", 13, 2, 49, 2, -1, 1))
sketch1.addConstraint(Sketcher.Constraint("Symmetric", 19, 2, 55, 2, -1, 1))
sketch1.addConstraint(Sketcher.Constraint("Symmetric", 31, 2, 67, 2, -1, 1))
sketch1.addConstraint(Sketcher.Constraint("Symmetric", 5, 3, 11, 3, -2))
sketch1.addConstraint(Sketcher.Constraint("Symmetric", 35, 3, 53, 3, -2))
sketch1.addConstraint(Sketcher.Constraint("Symmetric", 29, 3, 59, 3, -2))
sketch1.addConstraint(Sketcher.Constraint("Symmetric", 74, 3, 76, 3, -2))
sketch1.addConstraint(Sketcher.Constraint("Symmetric", 2, 2, 13, 2, -2))
sketch1.addConstraint(Sketcher.Constraint("Symmetric", 32, 2, 55, 2, -2))
sketch1.addConstraint(Sketcher.Constraint("Perpendicular", 6, 10))
sketch1.addConstraint(Sketcher.Constraint("Parallel", 10, 24))
sketch1.addConstraint(Sketcher.Constraint("Perpendicular", 24, 28))
sketch1.addConstraint(Sketcher.Constraint("Parallel", 28, 42))
sketch1.addConstraint(Sketcher.Constraint("Perpendicular", 42, 46))
sketch1.addConstraint(Sketcher.Constraint("Parallel", 46, 60))
sketch1.addConstraint(Sketcher.Constraint("Perpendicular", 60, 64))
sketch1.addConstraint(Sketcher.Constraint("Horizontal", 7, 3, 9, 3))
sketch1.addConstraint(Sketcher.Constraint("Horizontal", 31, 2, 56, 2))
sketch1.addConstraint(Sketcher.Constraint("Horizontal", 21, 2, 66, 2))
sketch1.addConstraint(Sketcher.Constraint("Horizontal", 19, 2, 68, 2))
sketch1.addConstraint(Sketcher.Constraint("Vertical", 15, 2, 36, 2))
sketch1.addConstraint(Sketcher.Constraint("Vertical", 13, 2, 38, 2))
sketch1.addConstraint(Sketcher.Constraint("Vertical", 1, 2, 50, 2))
sketch1.addConstraint(Sketcher.Constraint("Equal", 19, 21))
sketch1.addConstraint(Sketcher.Constraint("Equal", 69, 1))
sketch1.addConstraint(Sketcher.Constraint("Equal", 1, 3))
sketch1.addConstraint(Sketcher.Constraint("Equal", 52, 18))
sketch1.addConstraint(Sketcher.Constraint("Equal", 50, 20))
sketch1.addConstraint(Sketcher.Constraint("Equal", 48, 22))
sketch1.addConstraint(Sketcher.Constraint("Equal", 10, 24))
sketch1.addConstraint(Sketcher.Constraint("Radius", 5, Q("1.2 mm")))
sketch1.addConstraint(Sketcher.Constraint("Radius", 72, Q("0.6 mm")))
sketch1.addConstraint(Sketcher.Constraint("Radius", 73, Q("2.5 mm")))
sketch1.addConstraint(Sketcher.Constraint("Radius", 8, Q("4.85 mm")))
sketch1.addConstraint(Sketcher.Constraint("DistanceX", 19, 1, 19, 2, Q("0.7 mm")))
sketch1.addConstraint(Sketcher.Constraint("DistanceX", 0, 2, 0, 1, Q("7.35 mm")))
sketch1.addConstraint(Sketcher.Constraint("DistanceX", 2, 2, 2, 1, Q("0.75 mm")))
sketch1.addConstraint(Sketcher.Constraint("DistanceY", -1, 1, 5, 3, Q("9.9 mm")))
sketch1.addConstraint(Sketcher.Constraint("DistanceX", 4, 1, 4, 2, Q("4.012994 mm")))
sketch1.addConstraint(Sketcher.Constraint("DistanceX", -1, 1, 72, 3, Q("1.767767 mm")))
sketch1.addConstraint(Sketcher.Constraint("DistanceY", -1, 1, 72, 3, Q("1.767767 mm")))
sketch1.setExpression("Constraints[195]", "Params.sketch1_radius")
sketch1.setExpression("Constraints[196]", "Params.sketch1_radius2")
sketch1.setExpression("Constraints[197]", "Params.sketch1_radius3")
sketch1.setExpression("Constraints[198]", "Params.sketch1_radius4")
sketch1.setExpression("Constraints[199]", "Params.sketch1_width")
pad1 = body.newObject("PartDesign::Pad", "Pad")
pad1.Profile = sketch1
pad1.setExpression("Length", "Params.pad1_length")

doc.recompute()
